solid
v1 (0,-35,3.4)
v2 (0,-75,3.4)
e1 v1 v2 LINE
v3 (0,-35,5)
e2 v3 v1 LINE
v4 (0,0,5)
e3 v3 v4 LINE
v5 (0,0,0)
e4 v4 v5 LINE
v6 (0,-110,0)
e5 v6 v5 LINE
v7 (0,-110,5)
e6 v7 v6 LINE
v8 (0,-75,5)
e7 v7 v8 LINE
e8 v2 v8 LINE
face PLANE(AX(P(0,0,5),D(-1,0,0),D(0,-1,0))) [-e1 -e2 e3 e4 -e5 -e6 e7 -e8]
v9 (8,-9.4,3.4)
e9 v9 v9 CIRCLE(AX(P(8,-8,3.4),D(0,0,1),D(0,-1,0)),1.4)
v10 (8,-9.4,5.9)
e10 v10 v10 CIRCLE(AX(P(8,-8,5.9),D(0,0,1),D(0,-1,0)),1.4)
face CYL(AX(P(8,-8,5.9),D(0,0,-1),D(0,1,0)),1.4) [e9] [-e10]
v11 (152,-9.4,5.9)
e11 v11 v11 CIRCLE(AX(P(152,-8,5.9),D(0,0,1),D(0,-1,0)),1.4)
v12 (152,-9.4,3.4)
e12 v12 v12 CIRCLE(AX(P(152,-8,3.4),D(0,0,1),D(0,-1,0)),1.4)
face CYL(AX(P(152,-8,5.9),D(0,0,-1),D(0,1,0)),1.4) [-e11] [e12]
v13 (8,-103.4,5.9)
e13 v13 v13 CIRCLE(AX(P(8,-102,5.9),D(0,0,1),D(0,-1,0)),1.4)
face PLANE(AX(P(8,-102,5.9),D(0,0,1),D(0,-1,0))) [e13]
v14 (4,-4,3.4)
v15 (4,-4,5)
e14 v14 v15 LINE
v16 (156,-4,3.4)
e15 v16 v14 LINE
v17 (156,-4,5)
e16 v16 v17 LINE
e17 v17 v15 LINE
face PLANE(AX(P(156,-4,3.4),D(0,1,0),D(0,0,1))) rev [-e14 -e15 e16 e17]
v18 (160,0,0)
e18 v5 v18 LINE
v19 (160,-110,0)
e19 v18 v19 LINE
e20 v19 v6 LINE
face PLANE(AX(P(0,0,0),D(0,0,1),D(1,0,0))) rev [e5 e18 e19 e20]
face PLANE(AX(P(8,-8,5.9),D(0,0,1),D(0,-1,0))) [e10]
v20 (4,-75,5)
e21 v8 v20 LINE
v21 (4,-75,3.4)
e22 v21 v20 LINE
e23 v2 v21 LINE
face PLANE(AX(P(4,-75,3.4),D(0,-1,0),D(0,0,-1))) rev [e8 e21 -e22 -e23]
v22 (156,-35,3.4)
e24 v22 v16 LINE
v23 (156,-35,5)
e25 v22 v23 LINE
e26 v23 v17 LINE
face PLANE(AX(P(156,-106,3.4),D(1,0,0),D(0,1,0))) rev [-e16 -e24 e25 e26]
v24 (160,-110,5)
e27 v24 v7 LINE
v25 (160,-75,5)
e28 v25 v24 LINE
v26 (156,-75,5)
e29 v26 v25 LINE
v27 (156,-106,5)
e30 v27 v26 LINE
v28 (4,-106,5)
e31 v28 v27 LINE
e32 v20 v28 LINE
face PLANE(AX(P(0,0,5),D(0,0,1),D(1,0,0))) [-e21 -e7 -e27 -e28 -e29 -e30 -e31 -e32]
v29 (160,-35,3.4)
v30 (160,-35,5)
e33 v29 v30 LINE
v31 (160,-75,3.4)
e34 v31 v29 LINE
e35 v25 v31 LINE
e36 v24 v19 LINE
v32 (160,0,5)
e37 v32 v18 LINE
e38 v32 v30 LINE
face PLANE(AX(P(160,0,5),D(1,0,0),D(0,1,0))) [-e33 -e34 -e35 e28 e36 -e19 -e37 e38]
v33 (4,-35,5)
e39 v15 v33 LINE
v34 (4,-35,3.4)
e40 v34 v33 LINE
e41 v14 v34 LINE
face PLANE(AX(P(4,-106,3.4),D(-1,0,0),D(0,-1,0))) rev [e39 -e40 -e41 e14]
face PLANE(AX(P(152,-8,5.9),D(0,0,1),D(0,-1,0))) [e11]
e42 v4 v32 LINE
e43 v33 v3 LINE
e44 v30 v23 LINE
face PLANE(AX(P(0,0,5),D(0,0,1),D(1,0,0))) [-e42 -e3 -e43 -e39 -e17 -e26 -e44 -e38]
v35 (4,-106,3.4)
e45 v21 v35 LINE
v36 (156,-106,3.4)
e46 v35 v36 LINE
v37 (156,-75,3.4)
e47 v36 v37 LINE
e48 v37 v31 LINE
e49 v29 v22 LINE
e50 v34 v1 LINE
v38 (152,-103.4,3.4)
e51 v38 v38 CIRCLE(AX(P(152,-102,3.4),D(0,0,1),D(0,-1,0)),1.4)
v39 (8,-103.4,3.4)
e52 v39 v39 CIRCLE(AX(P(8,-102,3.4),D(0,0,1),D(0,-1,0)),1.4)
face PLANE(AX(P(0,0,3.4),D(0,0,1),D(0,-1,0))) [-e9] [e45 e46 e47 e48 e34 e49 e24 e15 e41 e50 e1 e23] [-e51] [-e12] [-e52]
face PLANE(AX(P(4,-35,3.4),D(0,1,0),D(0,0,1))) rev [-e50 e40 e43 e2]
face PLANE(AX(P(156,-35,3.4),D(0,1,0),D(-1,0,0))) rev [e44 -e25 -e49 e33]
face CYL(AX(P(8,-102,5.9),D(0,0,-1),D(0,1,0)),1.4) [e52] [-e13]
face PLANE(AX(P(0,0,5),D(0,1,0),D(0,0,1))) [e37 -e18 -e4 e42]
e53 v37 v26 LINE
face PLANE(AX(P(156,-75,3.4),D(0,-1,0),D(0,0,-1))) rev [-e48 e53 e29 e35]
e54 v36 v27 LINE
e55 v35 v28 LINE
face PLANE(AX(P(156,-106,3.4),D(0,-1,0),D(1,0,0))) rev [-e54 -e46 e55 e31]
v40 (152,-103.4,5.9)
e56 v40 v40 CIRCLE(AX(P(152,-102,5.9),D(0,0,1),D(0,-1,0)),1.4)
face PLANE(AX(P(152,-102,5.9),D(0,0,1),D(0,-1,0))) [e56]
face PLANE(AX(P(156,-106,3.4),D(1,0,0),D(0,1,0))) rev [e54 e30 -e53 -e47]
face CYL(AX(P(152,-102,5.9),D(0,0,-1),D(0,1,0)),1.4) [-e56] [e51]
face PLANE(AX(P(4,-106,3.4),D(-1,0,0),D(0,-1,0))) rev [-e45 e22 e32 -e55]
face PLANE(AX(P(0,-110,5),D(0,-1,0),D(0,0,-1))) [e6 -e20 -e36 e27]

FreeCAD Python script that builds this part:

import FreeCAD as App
import Part
import Sketcher
from FreeCAD import Vector
Q = App.Units.Quantity

doc = App.newDocument("Part")
body = doc.addObject("PartDesign::Body", "Body")

sketch1 = body.newObject("Sketcher::SketchObject", "Sketch")
sketch1.AttachmentSupport = (doc.getObject("XY_Plane"), [""])
sketch1.MapMode = "FlatFace"
sketch1.addGeometry([
    Part.LineSegment(Vector(0, -110, 0), Vector(0, 0, 0)),
    Part.LineSegment(Vector(0, 0, 0), Vector(160, 0, 0)),
    Part.LineSegment(Vector(160, 0, 0), Vector(160, -110, 0)),
    Part.LineSegment(Vector(160, -110, 0), Vector(0, -110, 0)),
], False)
sketch1.addConstraint([
    Sketcher.Constraint("Coincident", 0, 2, 1, 1),
    Sketcher.Constraint("Coincident", 1, 2, 2, 1),
    Sketcher.Constraint("Coincident", 2, 2, 3, 1),
    Sketcher.Constraint("Coincident", 3, 2, 0, 1),
    Sketcher.Constraint("Vertical", 0),
    Sketcher.Constraint("Horizontal", 1),
    Sketcher.Constraint("Vertical", 2),
    Sketcher.Constraint("Horizontal", 3),
    Sketcher.Constraint("Coincident", 0, 2, -1, 1),
    Sketcher.Constraint("DistanceX", 1, 1, 1, 2, Q("160 mm")),
    Sketcher.Constraint("DistanceY", 0, 1, 0, 2, Q("110 mm")),
])
pad1 = body.newObject("PartDesign::Pad", "Pad")
pad1.Profile = sketch1
pad1.Length = 5

sketch2 = body.newObject("Sketcher::SketchObject", "Sketch001")
sketch2.AttachmentSupport = (doc.getObject("XY_Plane"), [""])
sketch2.MapMode = "FlatFace"
sketch2.AttachmentOffset = App.Placement(Vector(0, 0, 5), App.Rotation())
sketch2.addGeometry([
    Part.LineSegment(Vector(156, -106, 0), Vector(156, -4, 0)),
    Part.LineSegment(Vector(156, -4, 0), Vector(4, -4, 0)),
    Part.LineSegment(Vector(4, -4, 0), Vector(4, -106, 0)),
    Part.LineSegment(Vector(4, -106, 0), Vector(156, -106, 0)),
], False)
sketch2.addConstraint([
    Sketcher.Constraint("Coincident", 0, 2, 1, 1),
    Sketcher.Constraint("Coincident", 1, 2, 2, 1),
    Sketcher.Constraint("Coincident", 2, 2, 3, 1),
    Sketcher.Constraint("Coincident", 3, 2, 0, 1),
    Sketcher.Constraint("Vertical", 0),
    Sketcher.Constraint("Horizontal", 1),
    Sketcher.Constraint("Vertical", 2),
    Sketcher.Constraint("Horizontal", 3),
    Sketcher.Constraint("DistanceX", 1, 2, 1, 1, Q("152 mm")),
    Sketcher.Constraint("DistanceY", 0, 1, 0, 2, Q("102 mm")),
    Sketcher.Constraint("DistanceX", -1, 1, 0, 2, Q("156 mm")),
    Sketcher.Constraint("DistanceY", 0, 2, -1, 1, Q("4 mm")),
])
pocket1 = body.newObject("PartDesign::Pocket", "Pocket")
pocket1.Profile = sketch2
pocket1.Length = 1.6

sketch3 = body.newObject("Sketcher::SketchObject", "Sketch002")
sketch3.AttachmentSupport = (doc.getObject("XY_Plane"), [""])
sketch3.MapMode = "FlatFace"
sketch3.AttachmentOffset = App.Placement(Vector(0, 0, 3.4), App.Rotation())
sketch3.addGeometry([
    Part.Circle(Vector(152, -102, 0), Vector(0, 0, 1), 1.4),
    Part.Circle(Vector(8, -102, 0), Vector(0, 0, 1), 1.4),
    Part.Circle(Vector(152, -8, 0), Vector(0, 0, 1), 1.4),
    Part.Circle(Vector(8, -8, 0), Vector(0, 0, 1), 1.4),
], False)
sketch3.addConstraint([
    Sketcher.Constraint("Equal", 0, 1),
    Sketcher.Constraint("Equal", 1, 2),
    Sketcher.Constraint("Equal", 2, 3),
    Sketcher.Constraint("Horizontal", 0, 3, 1, 3),
    Sketcher.Constraint("Horizontal", 2, 3, 3, 3),
    Sketcher.Constraint("Vertical", 0, 3, 2, 3),
    Sketcher.Constraint("Vertical", 1, 3, 3, 3),
    Sketcher.Constraint("Diameter", 0, Q("2.8 mm")),
    Sketcher.Constraint("DistanceX", -1, 1, 0, 3, Q("152 mm")),
    Sketcher.Constraint("DistanceY", 0, 3, -1, 1, Q("102 mm")),
    Sketcher.Constraint("DistanceX", -1, 1, 1, 3, Q("8 mm")),
    Sketcher.Constraint("DistanceY", 2, 3, -1, 1, Q("8 mm")),
])
pad2 = body.newObject("PartDesign::Pad", "Pad001")
pad2.Profile = sketch3
pad2.Length = 2.5

sketch4 = body.newObject("Sketcher::SketchObject", "Sketch003")
sketch4.AttachmentSupport = (doc.getObject("XY_Plane"), [""])
sketch4.MapMode = "FlatFace"
sketch4.AttachmentOffset = App.Placement(Vector(0, 0, 5), App.Rotation())
sketch4.addGeometry([
    Part.LineSegment(Vector(161, -75, 0), Vector(161, -35, 0)),
    Part.LineSegment(Vector(161, -35, 0), Vector(156, -35, 0)),
    Part.LineSegment(Vector(156, -35, 0), Vector(156, -75, 0)),
    Part.LineSegment(Vector(156, -75, 0), Vector(161, -75, 0)),
    Part.LineSegment(Vector(4, -75, 0), Vector(4, -35, 0)),
    Part.LineSegment(Vector(4, -35, 0), Vector(-1, -35, 0)),
    Part.LineSegment(Vector(-1, -35, 0), Vector(-1, -75, 0)),
    Part.LineSegment(Vector(-1, -75, 0), Vector(4, -75, 0)),
], False)
sketch4.addConstraint([
    Sketcher.Constraint("Coincident", 0, 2, 1, 1),
    Sketcher.Constraint("Coincident", 1, 2, 2, 1),
    Sketcher.Constraint("Coincident", 2, 2, 3, 1),
    Sketcher.Constraint("Coincident", 3, 2, 0, 1),
    Sketcher.Constraint("Coincident", 4, 2, 5, 1),
    Sketcher.Constraint("Coincident", 5, 2, 6, 1),
    Sketcher.Constraint("Coincident", 6, 2, 7, 1),
    Sketcher.Constraint("Coincident", 7, 2, 4, 1),
    Sketcher.Constraint("Vertical", 0),
    Sketcher.Constraint("Horizontal", 1),
    Sketcher.Constraint("Vertical", 2),
    Sketcher.Constraint("Horizontal", 3),
    Sketcher.Constraint("Vertical", 4),
    Sketcher.Constraint("Horizontal", 5),
    Sketcher.Constraint("Vertical", 6),
    Sketcher.Constraint("Horizontal", 7),
    Sketcher.Constraint("Horizontal", 1, 2, 4, 2),
    Sketcher.Constraint("Horizontal", 3, 2, 6, 2),
    Sketcher.Constraint("Equal", 3, 5),
    Sketcher.Constraint("DistanceX", 1, 2, 1, 1, Q("5 mm")),
    Sketcher.Constraint("DistanceY", 0, 1, 0, 2, Q("40 mm")),
    Sketcher.Constraint("DistanceX", -1, 1, 0, 2, Q("161 mm")),
    Sketcher.Constraint("DistanceY", 0, 2, -1, 1, Q("35 mm")),
    Sketcher.Constraint("DistanceX", -1, 1, 4, 2, Q("4 mm")),
])
pocket2 = body.newObject("PartDesign::Pocket", "Pocket001")
pocket2.Profile = sketch4
pocket2.Length = 1.6

doc.recompute()
